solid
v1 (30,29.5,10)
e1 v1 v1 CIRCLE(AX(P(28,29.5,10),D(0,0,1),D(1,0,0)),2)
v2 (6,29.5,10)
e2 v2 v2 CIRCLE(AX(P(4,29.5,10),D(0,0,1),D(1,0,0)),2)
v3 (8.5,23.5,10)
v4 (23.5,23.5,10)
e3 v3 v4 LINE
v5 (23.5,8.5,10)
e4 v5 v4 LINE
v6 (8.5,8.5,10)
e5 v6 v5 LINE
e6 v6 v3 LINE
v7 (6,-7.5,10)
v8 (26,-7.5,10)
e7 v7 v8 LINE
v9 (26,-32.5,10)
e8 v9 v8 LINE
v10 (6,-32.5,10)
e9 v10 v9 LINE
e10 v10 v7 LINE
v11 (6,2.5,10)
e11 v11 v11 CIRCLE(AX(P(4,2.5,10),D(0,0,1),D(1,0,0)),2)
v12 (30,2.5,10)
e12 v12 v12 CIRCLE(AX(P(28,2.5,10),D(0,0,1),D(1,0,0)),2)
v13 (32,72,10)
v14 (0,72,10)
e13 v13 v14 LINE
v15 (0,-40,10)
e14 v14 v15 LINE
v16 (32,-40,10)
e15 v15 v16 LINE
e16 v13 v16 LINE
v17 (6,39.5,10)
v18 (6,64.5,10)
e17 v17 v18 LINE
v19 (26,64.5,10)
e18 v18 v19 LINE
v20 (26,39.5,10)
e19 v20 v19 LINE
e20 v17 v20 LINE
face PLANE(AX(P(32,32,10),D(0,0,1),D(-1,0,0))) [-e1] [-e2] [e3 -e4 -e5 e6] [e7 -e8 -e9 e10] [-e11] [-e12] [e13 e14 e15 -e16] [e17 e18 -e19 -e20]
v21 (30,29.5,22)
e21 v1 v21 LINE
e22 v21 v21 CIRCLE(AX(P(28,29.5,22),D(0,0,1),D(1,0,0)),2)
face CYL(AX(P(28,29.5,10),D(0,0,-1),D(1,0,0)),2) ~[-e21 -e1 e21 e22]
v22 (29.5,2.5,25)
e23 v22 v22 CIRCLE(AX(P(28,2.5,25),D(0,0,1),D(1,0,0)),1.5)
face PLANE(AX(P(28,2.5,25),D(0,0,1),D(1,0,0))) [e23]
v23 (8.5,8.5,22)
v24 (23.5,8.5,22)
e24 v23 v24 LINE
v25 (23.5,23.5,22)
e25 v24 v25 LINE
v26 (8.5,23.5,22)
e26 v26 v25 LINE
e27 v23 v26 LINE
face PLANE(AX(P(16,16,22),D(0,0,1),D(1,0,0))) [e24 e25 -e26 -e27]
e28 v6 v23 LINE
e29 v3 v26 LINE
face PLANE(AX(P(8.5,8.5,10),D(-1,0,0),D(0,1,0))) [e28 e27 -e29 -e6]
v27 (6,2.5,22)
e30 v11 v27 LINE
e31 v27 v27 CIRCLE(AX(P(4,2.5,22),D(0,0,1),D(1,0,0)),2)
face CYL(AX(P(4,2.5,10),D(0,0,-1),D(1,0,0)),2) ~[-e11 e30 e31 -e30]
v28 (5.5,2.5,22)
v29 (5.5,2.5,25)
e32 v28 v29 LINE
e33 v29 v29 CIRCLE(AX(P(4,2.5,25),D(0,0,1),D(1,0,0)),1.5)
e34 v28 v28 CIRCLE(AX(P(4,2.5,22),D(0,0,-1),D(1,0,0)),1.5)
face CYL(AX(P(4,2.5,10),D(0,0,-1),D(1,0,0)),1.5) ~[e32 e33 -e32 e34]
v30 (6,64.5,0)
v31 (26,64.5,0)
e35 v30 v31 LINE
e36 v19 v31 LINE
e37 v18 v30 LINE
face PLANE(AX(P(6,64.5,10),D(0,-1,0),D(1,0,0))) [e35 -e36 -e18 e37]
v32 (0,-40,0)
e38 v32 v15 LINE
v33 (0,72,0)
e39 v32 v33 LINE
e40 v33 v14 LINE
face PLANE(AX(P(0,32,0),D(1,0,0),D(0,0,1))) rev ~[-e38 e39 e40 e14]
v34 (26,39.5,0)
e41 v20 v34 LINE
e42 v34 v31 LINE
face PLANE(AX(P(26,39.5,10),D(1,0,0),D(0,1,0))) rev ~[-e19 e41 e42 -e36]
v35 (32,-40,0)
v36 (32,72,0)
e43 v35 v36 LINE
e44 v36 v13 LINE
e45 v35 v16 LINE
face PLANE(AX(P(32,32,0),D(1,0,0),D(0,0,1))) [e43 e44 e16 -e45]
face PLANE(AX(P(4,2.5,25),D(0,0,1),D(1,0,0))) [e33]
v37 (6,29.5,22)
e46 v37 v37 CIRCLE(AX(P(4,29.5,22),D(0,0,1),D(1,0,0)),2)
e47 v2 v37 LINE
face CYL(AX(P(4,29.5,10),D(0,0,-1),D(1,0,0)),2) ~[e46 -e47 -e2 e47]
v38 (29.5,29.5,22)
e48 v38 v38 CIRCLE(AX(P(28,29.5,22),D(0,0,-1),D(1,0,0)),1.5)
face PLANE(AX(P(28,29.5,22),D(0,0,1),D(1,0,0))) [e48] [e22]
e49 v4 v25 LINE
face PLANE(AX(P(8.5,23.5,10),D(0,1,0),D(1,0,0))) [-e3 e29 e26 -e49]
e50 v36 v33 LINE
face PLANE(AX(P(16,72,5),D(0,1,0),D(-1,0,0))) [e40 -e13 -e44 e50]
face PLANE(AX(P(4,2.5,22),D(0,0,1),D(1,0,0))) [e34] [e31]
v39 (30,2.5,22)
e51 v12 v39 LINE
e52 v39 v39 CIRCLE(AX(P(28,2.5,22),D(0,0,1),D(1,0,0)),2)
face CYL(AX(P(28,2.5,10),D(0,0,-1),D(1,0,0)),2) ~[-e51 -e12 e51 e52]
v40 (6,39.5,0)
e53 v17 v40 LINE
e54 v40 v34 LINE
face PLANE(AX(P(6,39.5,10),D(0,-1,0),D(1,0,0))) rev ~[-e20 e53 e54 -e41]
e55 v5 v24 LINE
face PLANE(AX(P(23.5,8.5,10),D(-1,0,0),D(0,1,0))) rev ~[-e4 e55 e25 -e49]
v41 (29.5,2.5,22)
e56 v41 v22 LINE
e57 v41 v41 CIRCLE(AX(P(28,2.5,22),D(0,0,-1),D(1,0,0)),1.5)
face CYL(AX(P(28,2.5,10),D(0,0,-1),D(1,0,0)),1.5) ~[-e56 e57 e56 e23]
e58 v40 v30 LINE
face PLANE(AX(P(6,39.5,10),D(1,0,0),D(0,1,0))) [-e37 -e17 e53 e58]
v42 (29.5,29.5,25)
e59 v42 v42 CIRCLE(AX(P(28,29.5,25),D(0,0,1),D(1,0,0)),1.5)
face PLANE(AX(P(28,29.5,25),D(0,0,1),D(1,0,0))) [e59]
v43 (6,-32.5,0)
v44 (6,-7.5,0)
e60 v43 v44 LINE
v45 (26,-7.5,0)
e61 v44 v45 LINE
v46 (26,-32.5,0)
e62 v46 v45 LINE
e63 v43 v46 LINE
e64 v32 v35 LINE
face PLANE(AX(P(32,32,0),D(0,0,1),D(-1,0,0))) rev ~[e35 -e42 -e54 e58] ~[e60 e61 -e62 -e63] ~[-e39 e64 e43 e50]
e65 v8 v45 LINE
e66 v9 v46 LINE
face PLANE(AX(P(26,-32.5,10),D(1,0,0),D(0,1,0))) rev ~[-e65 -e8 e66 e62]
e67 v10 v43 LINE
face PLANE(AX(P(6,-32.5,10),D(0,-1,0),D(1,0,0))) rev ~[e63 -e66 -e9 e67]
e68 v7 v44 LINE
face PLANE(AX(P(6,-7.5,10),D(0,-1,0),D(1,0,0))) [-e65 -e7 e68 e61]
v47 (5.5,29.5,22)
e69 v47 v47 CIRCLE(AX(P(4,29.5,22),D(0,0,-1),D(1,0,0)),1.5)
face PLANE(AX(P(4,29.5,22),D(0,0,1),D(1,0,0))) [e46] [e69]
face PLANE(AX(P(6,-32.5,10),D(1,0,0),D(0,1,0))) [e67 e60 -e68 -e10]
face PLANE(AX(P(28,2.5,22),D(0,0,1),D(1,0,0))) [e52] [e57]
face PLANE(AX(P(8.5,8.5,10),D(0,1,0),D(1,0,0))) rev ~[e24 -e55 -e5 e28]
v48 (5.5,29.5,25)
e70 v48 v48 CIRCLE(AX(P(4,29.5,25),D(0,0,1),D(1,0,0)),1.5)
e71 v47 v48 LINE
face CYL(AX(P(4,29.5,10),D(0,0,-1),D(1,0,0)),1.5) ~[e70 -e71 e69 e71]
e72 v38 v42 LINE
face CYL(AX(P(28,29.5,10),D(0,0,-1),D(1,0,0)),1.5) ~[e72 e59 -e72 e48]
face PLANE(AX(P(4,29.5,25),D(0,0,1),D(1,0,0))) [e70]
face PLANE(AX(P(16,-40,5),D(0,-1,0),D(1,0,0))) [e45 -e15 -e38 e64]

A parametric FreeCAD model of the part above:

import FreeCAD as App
import Part
import Sketcher
from FreeCAD import Vector

doc = App.newDocument("Part")
body = doc.addObject("PartDesign::Body", "Body")

# Sketch on XY plane
sketch1 = doc.addObject("Sketcher::SketchObject", "Sketch")
body.addObject(sketch1)
sketch1.AttachmentSupport = (doc.XY_Plane, [""])
sketch1.MapMode = "FlatFace"
sketch1.addGeometry(Part.LineSegment(Vector(0, 32, 0), Vector(0, 0, 0)), False)
sketch1.addGeometry(Part.LineSegment(Vector(0, 0, 0), Vector(32, 0, 0)), False)
sketch1.addGeometry(Part.LineSegment(Vector(32, 0, 0), Vector(32, 32, 0)), False)
sketch1.addGeometry(Part.LineSegment(Vector(32, 32, 0), Vector(0, 32, 0)), False)
sketch1.addConstraint(Sketcher.Constraint("Coincident", 0, 2, 1, 1))
sketch1.addConstraint(Sketcher.Constraint("Coincident", 1, 2, 2, 1))
sketch1.addConstraint(Sketcher.Constraint("Coincident", 2, 2, 3, 1))
sketch1.addConstraint(Sketcher.Constraint("Coincident", 3, 2, 0, 1))
sketch1.addConstraint(Sketcher.Constraint("Vertical", 0))
sketch1.addConstraint(Sketcher.Constraint("Horizontal", 1))
sketch1.addConstraint(Sketcher.Constraint("Vertical", 2))
sketch1.addConstraint(Sketcher.Constraint("Horizontal", 3))
sketch1.addConstraint(Sketcher.Constraint("Coincident", 0, 2, -1, 1))
sketch1.addConstraint(Sketcher.Constraint("Equal", 3, 0))
sketch1.addConstraint(Sketcher.Constraint("DistanceX", 1, 1, 1, 2, 32.0))
pad1 = doc.addObject("PartDesign::Pad", "Pad")
body.addObject(pad1)
pad1.Profile = sketch1
pad1.Length = 10

# Sketch on XY plane
sketch2 = doc.addObject("Sketcher::SketchObject", "Sketch001")
body.addObject(sketch2)
sketch2.AttachmentSupport = (doc.XY_Plane, [""])
sketch2.MapMode = "FlatFace"
sketch2.AttachmentOffset = App.Placement(Vector(0, 0, 10), App.Rotation())
sketch2.addGeometry(Part.Circle(Vector(4, 29.5, 0), Vector(0, 0, 1), 1.5), False)
sketch2.addGeometry(Part.Circle(Vector(28, 29.5, 0), Vector(0, 0, 1), 1.5), False)
sketch2.addGeometry(Part.Circle(Vector(4, 2.5, 0), Vector(0, 0, 1), 1.5), False)
sketch2.addGeometry(Part.Circle(Vector(28, 2.5, 0), Vector(0, 0, 1), 1.5), False)
sketch2.addConstraint(Sketcher.Constraint("Equal", 0, 1))
sketch2.addConstraint(Sketcher.Constraint("Equal", 1, 2))
sketch2.addConstraint(Sketcher.Constraint("Equal", 2, 3))
sketch2.addConstraint(Sketcher.Constraint("Horizontal", 0, 3, 1, 3))
sketch2.addConstraint(Sketcher.Constraint("Horizontal", 2, 3, 3, 3))
sketch2.addConstraint(Sketcher.Constraint("Vertical", 0, 3, 2, 3))
sketch2.addConstraint(Sketcher.Constraint("Vertical", 1, 3, 3, 3))
sketch2.addConstraint(Sketcher.Constraint("Diameter", 0, 3.0))
sketch2.addConstraint(Sketcher.Constraint("DistanceX", -1, 1, 0, 3, 4.0))
sketch2.addConstraint(Sketcher.Constraint("DistanceX", -1, 1, 1, 3, 28.0))
sketch2.addConstraint(Sketcher.Constraint("DistanceY", 2, 3, 0, 3, 27.0))
sketch2.addConstraint(Sketcher.Constraint("DistanceY", -1, 1, 0, 3, 29.5))
pad2 = doc.addObject("PartDesign::Pad", "Pad001")
body.addObject(pad2)
pad2.Profile = sketch2
pad2.Length = 15

# Sketch on XY plane
sketch3 = doc.addObject("Sketcher::SketchObject", "Sketch002")
body.addObject(sketch3)
sketch3.AttachmentSupport = (doc.XY_Plane, [""])
sketch3.MapMode = "FlatFace"
sketch3.AttachmentOffset = App.Placement(Vector(0, 0, 10), App.Rotation())
sketch3.addGeometry(Part.Circle(Vector(4, 2.5, 0), Vector(0, 0, 1), 2), False)
sketch3.addGeometry(Part.Circle(Vector(28, 2.5, 0), Vector(0, 0, 1), 2), False)
sketch3.addGeometry(Part.Circle(Vector(4, 29.5, 0), Vector(0, 0, 1), 2), False)
sketch3.addGeometry(Part.Circle(Vector(28, 29.5, 0), Vector(0, 0, 1), 2), False)
sketch3.addGeometry(Part.LineSegment(Vector(8.5, 23.5, 0), Vector(8.5, 8.5, 0)), False)
sketch3.addGeometry(Part.LineSegment(Vector(8.5, 8.5, 0), Vector(23.5, 8.5, 0)), False)
sketch3.addGeometry(Part.LineSegment(Vector(23.5, 8.5, 0), Vector(23.5, 23.5, 0)), False)
sketch3.addGeometry(Part.LineSegment(Vector(23.5, 23.5, 0), Vector(8.5, 23.5, 0)), False)
sketch3.addConstraint(Sketcher.Constraint("Coincident", 4, 2, 5, 1))
sketch3.addConstraint(Sketcher.Constraint("Coincident", 5, 2, 6, 1))
sketch3.addConstraint(Sketcher.Constraint("Coincident", 6, 2, 7, 1))
sketch3.addConstraint(Sketcher.Constraint("Coincident", 7, 2, 4, 1))
sketch3.addConstraint(Sketcher.Constraint("Vertical", 4))
sketch3.addConstraint(Sketcher.Constraint("Horizontal", 5))
sketch3.addConstraint(Sketcher.Constraint("Vertical", 6))
sketch3.addConstraint(Sketcher.Constraint("Horizontal", 7))
sketch3.addConstraint(Sketcher.Constraint("Equal", 0, 1))
sketch3.addConstraint(Sketcher.Constraint("Equal", 1, 2))
sketch3.addConstraint(Sketcher.Constraint("Equal", 2, 3))
sketch3.addConstraint(Sketcher.Constraint("Horizontal", 0, 3, 1, 3))
sketch3.addConstraint(Sketcher.Constraint("Horizontal", 2, 3, 3, 3))
sketch3.addConstraint(Sketcher.Constraint("Vertical", 0, 3, 2, 3))
sketch3.addConstraint(Sketcher.Constraint("Vertical", 1, 3, 3, 3))
sketch3.addConstraint(Sketcher.Constraint("Equal", 7, 4))
sketch3.addConstraint(Sketcher.Constraint("Diameter", 0, 4.0))
sketch3.addConstraint(Sketcher.Constraint("DistanceX", 5, 1, 5, 2, 15.0))
sketch3.addConstraint(Sketcher.Constraint("DistanceX", -1, 1, 0, 3, 4.0))
sketch3.addConstraint(Sketcher.Constraint("DistanceX", -1, 1, 1, 3, 28.0))
sketch3.addConstraint(Sketcher.Constraint("DistanceY", 0, 3, 2, 3, 27.0))
sketch3.addConstraint(Sketcher.Constraint("DistanceY", 0, 3, 4, 2, 6.0))
sketch3.addConstraint(Sketcher.Constraint("DistanceY", -1, 1, 0, 3, 2.5))
sketch3.addConstraint(Sketcher.Constraint("DistanceX", -1, 1, 4, 2, 8.5))
pad3 = doc.addObject("PartDesign::Pad", "Pad002")
body.addObject(pad3)
pad3.Profile = sketch3
pad3.Length = 12

# Sketch on XZ plane
sketch4 = doc.addObject("Sketcher::SketchObject", "Sketch003")
body.addObject(sketch4)
sketch4.AttachmentSupport = (doc.XZ_Plane, [""])
sketch4.MapMode = "FlatFace"
sketch4.addGeometry(Part.LineSegment(Vector(0, 10, 0), Vector(0, 0, 0)), False)
sketch4.addGeometry(Part.LineSegment(Vector(0, 0, 0), Vector(32, 0, 0)), False)
sketch4.addGeometry(Part.LineSegment(Vector(32, 0, 0), Vector(32, 10, 0)), False)
sketch4.addGeometry(Part.LineSegment(Vector(32, 10, 0), Vector(0, 10, 0)), False)
sketch4.addConstraint(Sketcher.Constraint("Coincident", 0, 2, 1, 1))
sketch4.addConstraint(Sketcher.Constraint("Coincident", 1, 2, 2, 1))
sketch4.addConstraint(Sketcher.Constraint("Coincident", 2, 2, 3, 1))
sketch4.addConstraint(Sketcher.Constraint("Coincident", 3, 2, 0, 1))
sketch4.addConstraint(Sketcher.Constraint("Vertical", 0))
sketch4.addConstraint(Sketcher.Constraint("Horizontal", 1))
sketch4.addConstraint(Sketcher.Constraint("Vertical", 2))
sketch4.addConstraint(Sketcher.Constraint("Horizontal", 3))
sketch4.addConstraint(Sketcher.Constraint("Coincident", 0, 2, -1, 1))
sketch4.addConstraint(Sketcher.Constraint("DistanceX", 1, 1, 1, 2, 32.0))
sketch4.addConstraint(Sketcher.Constraint("DistanceY", 0, 2, 0, 1, 10.0))
pad4 = doc.addObject("PartDesign::Pad", "Pad003")
body.addObject(pad4)
pad4.Profile = sketch4
pad4.Length = 40

# Sketch on XZ plane
sketch5 = doc.addObject("Sketcher::SketchObject", "Sketch004")
body.addObject(sketch5)
sketch5.AttachmentSupport = (doc.XZ_Plane, [""])
sketch5.MapMode = "FlatFace"
sketch5.AttachmentOffset = App.Placement(Vector(0, 0, -32), App.Rotation())
sketch5.addGeometry(Part.LineSegment(Vector(32, 10, 0), Vector(32, 0, 0)), False)
sketch5.addGeometry(Part.LineSegment(Vector(32, 0, 0), Vector(0, 0, 0)), False)
sketch5.addGeometry(Part.LineSegment(Vector(0, 0, 0), Vector(0, 10, 0)), False)
sketch5.addGeometry(Part.LineSegment(Vector(0, 10, 0), Vector(32, 10, 0)), False)
sketch5.addConstraint(Sketcher.Constraint("Coincident", 0, 2, 1, 1))
sketch5.addConstraint(Sketcher.Constraint("Coincident", 1, 2, 2, 1))
sketch5.addConstraint(Sketcher.Constraint("Coincident", 2, 2, 3, 1))
sketch5.addConstraint(Sketcher.Constraint("Coincident", 3, 2, 0, 1))
sketch5.addConstraint(Sketcher.Constraint("Vertical", 0))
sketch5.addConstraint(Sketcher.Constraint("Horizontal", 1))
sketch5.addConstraint(Sketcher.Constraint("Vertical", 2))
sketch5.addConstraint(Sketcher.Constraint("Horizontal", 3))
sketch5.addConstraint(Sketcher.Constraint("Coincident", 1, 2, -1, 1))
sketch5.addConstraint(Sketcher.Constraint("DistanceX", 1, 2, 1, 1, 32.0))
sketch5.addConstraint(Sketcher.Constraint("DistanceY", 0, 2, 0, 1, 10.0))
pad5 = doc.addObject("PartDesign::Pad", "Pad004")
body.addObject(pad5)
pad5.Profile = sketch5
pad5.Length = 40
pad5.Reversed = True

# Sketch on XY plane
sketch6 = doc.addObject("Sketcher::SketchObject", "Sketch005")
body.addObject(sketch6)
sketch6.AttachmentSupport = (doc.XY_Plane, [""])
sketch6.MapMode = "FlatFace"
sketch6.AttachmentOffset = App.Placement(Vector(0, 0, 10), App.Rotation())
sketch6.addGeometry(Part.LineSegment(Vector(6, 64, 0), Vector(6, 40, 0)), False)
sketch6.addGeometry(Part.LineSegment(Vector(6, 40, 0), Vector(26, 40, 0)), False)
sketch6.addGeometry(Part.LineSegment(Vector(26, 40, 0), Vector(26, 64, 0)), False)
sketch6.addGeometry(Part.LineSegment(Vector(26, 64, 0), Vector(6, 64, 0)), False)
sketch6.addConstraint(Sketcher.Constraint("Coincident", 0, 2, 1, 1))
sketch6.addConstraint(Sketcher.Constraint("Coincident", 1, 2, 2, 1))
sketch6.addConstraint(Sketcher.Constraint("Coincident", 2, 2, 3, 1))
sketch6.addConstraint(Sketcher.Constraint("Coincident", 3, 2, 0, 1))
sketch6.addConstraint(Sketcher.Constraint("Vertical", 0))
sketch6.addConstraint(Sketcher.Constraint("Horizontal", 1))
sketch6.addConstraint(Sketcher.Constraint("Vertical", 2))
sketch6.addConstraint(Sketcher.Constraint("Horizontal", 3))
sketch6.addConstraint(Sketcher.Constraint("DistanceX", 1, 1, 1, 2, 20.0))
sketch6.addConstraint(Sketcher.Constraint("DistanceY", 0, 2, 0, 1, 25.0))
sketch6.addConstraint(Sketcher.Constraint("DistanceX", -1, 1, 0, 2, 6.0))
sketch6.addConstraint(Sketcher.Constraint("DistanceY", -1, 1, 0, 2, 39.5))
pocket1 = doc.addObject("PartDesign::Pocket", "Pocket")
body.addObject(pocket1)
pocket1.Profile = sketch6
pocket1.Type = "ThroughAll"

# Sketch on XY plane
sketch7 = doc.addObject("Sketcher::SketchObject", "Sketch006")
body.addObject(sketch7)
sketch7.AttachmentSupport = (doc.XY_Plane, [""])
sketch7.MapMode = "FlatFace"
sketch7.AttachmentOffset = App.Placement(Vector(0, 0, 10), App.Rotation())
sketch7.addGeometry(Part.LineSegment(Vector(6, -8, 0), Vector(6, -32, 0)), False)
sketch7.addGeometry(Part.LineSegment(Vector(6, -32, 0), Vector(26, -32, 0)), False)
sketch7.addGeometry(Part.LineSegment(Vector(26, -32, 0), Vector(26, -8, 0)), False)
sketch7.addGeometry(Part.LineSegment(Vector(26, -8, 0), Vector(6, -8, 0)), False)
sketch7.addConstraint(Sketcher.Constraint("Coincident", 0, 2, 1, 1))
sketch7.addConstraint(Sketcher.Constraint("Coincident", 1, 2, 2, 1))
sketch7.addConstraint(Sketcher.Constraint("Coincident", 2, 2, 3, 1))
sketch7.addConstraint(Sketcher.Constraint("Coincident", 3, 2, 0, 1))
sketch7.addConstraint(Sketcher.Constraint("Vertical", 0))
sketch7.addConstraint(Sketcher.Constraint("Horizontal", 1))
sketch7.addConstraint(Sketcher.Constraint("Vertical", 2))
sketch7.addConstraint(Sketcher.Constraint("Horizontal", 3))
sketch7.addConstraint(Sketcher.Constraint("DistanceX", 1, 1, 1, 2, 20.0))
sketch7.addConstraint(Sketcher.Constraint("DistanceY", 0, 2, 0, 1, 25.0))
sketch7.addConstraint(Sketcher.Constraint("DistanceX", -1, 1, 0, 2, 6.0))
sketch7.addConstraint(Sketcher.Constraint("DistanceY", 0, 2, -1, 1, 32.5))
pocket2 = doc.addObject("PartDesign::Pocket", "Pocket001")
body.addObject(pocket2)
pocket2.Profile = sketch7
pocket2.Type = "ThroughAll"

doc.recompute()
